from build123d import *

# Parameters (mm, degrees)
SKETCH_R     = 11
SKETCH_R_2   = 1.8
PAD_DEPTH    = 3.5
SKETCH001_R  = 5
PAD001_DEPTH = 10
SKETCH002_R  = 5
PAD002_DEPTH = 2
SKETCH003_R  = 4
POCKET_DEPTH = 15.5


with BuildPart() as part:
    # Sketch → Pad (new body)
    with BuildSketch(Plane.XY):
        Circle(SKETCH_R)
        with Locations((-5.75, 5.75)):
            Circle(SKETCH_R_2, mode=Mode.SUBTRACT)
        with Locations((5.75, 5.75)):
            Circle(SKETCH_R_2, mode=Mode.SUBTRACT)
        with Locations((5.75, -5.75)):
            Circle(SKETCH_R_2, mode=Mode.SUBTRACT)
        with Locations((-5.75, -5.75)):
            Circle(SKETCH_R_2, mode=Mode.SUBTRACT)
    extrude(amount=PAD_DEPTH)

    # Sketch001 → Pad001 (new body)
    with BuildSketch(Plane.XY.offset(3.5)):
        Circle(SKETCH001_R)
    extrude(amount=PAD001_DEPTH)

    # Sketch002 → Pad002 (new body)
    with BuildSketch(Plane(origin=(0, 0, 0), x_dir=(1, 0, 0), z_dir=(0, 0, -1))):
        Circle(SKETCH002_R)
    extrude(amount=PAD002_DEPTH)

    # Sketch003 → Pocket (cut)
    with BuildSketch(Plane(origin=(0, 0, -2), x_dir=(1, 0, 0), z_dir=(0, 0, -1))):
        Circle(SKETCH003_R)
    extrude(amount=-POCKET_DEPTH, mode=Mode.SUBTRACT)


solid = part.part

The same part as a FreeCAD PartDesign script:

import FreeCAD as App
import Part
import Sketcher

V = App.Vector

doc = App.newDocument("Part")
body = doc.addObject("PartDesign::Body", "Body")

# Sketch on XY plane
sketch1 = body.newObject("Sketcher::SketchObject", "Sketch")
sketch1.AttachmentSupport = (doc.getObject("XY_Plane"), [""])
sketch1.MapMode = "FlatFace"
sketch1.addGeometry([
    Part.Circle(V(0, 0, 0), V(0, 0, 1), 11),  # 0
    Part.Circle(V(-5.8, -5.8, 0), V(0, 0, 1), 1.8),  # 1
    Part.Circle(V(5.8, -5.8, 0), V(0, 0, 1), 1.8),  # 2
    Part.Circle(V(-5.8, 5.8, 0), V(0, 0, 1), 1.8),  # 3
    Part.Circle(V(5.8, 5.8, 0), V(0, 0, 1), 1.8),  # 4
], False)
sketch1.addConstraint([
    Sketcher.Constraint("Coincident", 0, 3, -1, 1),
    Sketcher.Constraint("Equal", 1, 2),
    Sketcher.Constraint("Equal", 2, 3),
    Sketcher.Constraint("Equal", 3, 4),
    Sketcher.Constraint("Symmetric", 2, 3, 3, 3, -1, 1),
    Sketcher.Constraint("Symmetric", 1, 3, 4, 3, -1, 1),
    Sketcher.Constraint("Symmetric", 1, 3, 2, 3, -2),
    Sketcher.Constraint("Diameter", 0, 22.0),
    Sketcher.Constraint("Diameter", 1, 3.6),
    Sketcher.Constraint("DistanceX", 1, 3, 2, 3, 11.5),
    Sketcher.Constraint("DistanceY", 1, 3, 3, 3, 11.5),
])
pad1 = body.newObject("PartDesign::Pad", "Pad")
pad1.Profile = sketch1
pad1.Length = 3.5

# Sketch on XY plane
sketch2 = body.newObject("Sketcher::SketchObject", "Sketch001")
sketch2.AttachmentSupport = (doc.getObject("XY_Plane"), [""])
sketch2.MapMode = "FlatFace"
sketch2.AttachmentOffset = App.Placement(V(0, 0, 3.5), App.Rotation())
sketch2.addGeometry(Part.Circle(V(0, 0, 0), V(0, 0, 1), 5), False)
sketch2.addConstraint([
    Sketcher.Constraint("Coincident", 0, 3, -1, 1),
    Sketcher.Constraint("Diameter", 0, 10.0),
])
pad2 = body.newObject("PartDesign::Pad", "Pad001")
pad2.Profile = sketch2
pad2.Length = 10

# Sketch on XY plane
sketch3 = body.newObject("Sketcher::SketchObject", "Sketch002")
sketch3.AttachmentSupport = (doc.getObject("XY_Plane"), [""])
sketch3.MapMode = "FlatFace"
sketch3.addGeometry(Part.Circle(V(0, 0, 0), V(0, 0, 1), 5), False)
sketch3.addConstraint([
    Sketcher.Constraint("Coincident", 0, 3, -1, 1),
    Sketcher.Constraint("Diameter", 0, 10.0),
])
pad3 = body.newObject("PartDesign::Pad", "Pad002")
pad3.Profile = sketch3
pad3.Length = 2
pad3.Reversed = True

# Sketch on XY plane
sketch4 = body.newObject("Sketcher::SketchObject", "Sketch003")
sketch4.AttachmentSupport = (doc.getObject("XY_Plane"), [""])
sketch4.MapMode = "FlatFace"
sketch4.AttachmentOffset = App.Placement(V(0, 0, -2), App.Rotation())
sketch4.addGeometry(Part.Circle(V(0, 0, 0), V(0, 0, 1), 4), False)
sketch4.addConstraint([
    Sketcher.Constraint("Coincident", 0, 3, -1, 1),
    Sketcher.Constraint("Diameter", 0, 8.0),
])
pocket1 = body.newObject("PartDesign::Pocket", "Pocket")
pocket1.Profile = sketch4
pocket1.Length = 15.5
pocket1.Reversed = True

doc.recompute()
